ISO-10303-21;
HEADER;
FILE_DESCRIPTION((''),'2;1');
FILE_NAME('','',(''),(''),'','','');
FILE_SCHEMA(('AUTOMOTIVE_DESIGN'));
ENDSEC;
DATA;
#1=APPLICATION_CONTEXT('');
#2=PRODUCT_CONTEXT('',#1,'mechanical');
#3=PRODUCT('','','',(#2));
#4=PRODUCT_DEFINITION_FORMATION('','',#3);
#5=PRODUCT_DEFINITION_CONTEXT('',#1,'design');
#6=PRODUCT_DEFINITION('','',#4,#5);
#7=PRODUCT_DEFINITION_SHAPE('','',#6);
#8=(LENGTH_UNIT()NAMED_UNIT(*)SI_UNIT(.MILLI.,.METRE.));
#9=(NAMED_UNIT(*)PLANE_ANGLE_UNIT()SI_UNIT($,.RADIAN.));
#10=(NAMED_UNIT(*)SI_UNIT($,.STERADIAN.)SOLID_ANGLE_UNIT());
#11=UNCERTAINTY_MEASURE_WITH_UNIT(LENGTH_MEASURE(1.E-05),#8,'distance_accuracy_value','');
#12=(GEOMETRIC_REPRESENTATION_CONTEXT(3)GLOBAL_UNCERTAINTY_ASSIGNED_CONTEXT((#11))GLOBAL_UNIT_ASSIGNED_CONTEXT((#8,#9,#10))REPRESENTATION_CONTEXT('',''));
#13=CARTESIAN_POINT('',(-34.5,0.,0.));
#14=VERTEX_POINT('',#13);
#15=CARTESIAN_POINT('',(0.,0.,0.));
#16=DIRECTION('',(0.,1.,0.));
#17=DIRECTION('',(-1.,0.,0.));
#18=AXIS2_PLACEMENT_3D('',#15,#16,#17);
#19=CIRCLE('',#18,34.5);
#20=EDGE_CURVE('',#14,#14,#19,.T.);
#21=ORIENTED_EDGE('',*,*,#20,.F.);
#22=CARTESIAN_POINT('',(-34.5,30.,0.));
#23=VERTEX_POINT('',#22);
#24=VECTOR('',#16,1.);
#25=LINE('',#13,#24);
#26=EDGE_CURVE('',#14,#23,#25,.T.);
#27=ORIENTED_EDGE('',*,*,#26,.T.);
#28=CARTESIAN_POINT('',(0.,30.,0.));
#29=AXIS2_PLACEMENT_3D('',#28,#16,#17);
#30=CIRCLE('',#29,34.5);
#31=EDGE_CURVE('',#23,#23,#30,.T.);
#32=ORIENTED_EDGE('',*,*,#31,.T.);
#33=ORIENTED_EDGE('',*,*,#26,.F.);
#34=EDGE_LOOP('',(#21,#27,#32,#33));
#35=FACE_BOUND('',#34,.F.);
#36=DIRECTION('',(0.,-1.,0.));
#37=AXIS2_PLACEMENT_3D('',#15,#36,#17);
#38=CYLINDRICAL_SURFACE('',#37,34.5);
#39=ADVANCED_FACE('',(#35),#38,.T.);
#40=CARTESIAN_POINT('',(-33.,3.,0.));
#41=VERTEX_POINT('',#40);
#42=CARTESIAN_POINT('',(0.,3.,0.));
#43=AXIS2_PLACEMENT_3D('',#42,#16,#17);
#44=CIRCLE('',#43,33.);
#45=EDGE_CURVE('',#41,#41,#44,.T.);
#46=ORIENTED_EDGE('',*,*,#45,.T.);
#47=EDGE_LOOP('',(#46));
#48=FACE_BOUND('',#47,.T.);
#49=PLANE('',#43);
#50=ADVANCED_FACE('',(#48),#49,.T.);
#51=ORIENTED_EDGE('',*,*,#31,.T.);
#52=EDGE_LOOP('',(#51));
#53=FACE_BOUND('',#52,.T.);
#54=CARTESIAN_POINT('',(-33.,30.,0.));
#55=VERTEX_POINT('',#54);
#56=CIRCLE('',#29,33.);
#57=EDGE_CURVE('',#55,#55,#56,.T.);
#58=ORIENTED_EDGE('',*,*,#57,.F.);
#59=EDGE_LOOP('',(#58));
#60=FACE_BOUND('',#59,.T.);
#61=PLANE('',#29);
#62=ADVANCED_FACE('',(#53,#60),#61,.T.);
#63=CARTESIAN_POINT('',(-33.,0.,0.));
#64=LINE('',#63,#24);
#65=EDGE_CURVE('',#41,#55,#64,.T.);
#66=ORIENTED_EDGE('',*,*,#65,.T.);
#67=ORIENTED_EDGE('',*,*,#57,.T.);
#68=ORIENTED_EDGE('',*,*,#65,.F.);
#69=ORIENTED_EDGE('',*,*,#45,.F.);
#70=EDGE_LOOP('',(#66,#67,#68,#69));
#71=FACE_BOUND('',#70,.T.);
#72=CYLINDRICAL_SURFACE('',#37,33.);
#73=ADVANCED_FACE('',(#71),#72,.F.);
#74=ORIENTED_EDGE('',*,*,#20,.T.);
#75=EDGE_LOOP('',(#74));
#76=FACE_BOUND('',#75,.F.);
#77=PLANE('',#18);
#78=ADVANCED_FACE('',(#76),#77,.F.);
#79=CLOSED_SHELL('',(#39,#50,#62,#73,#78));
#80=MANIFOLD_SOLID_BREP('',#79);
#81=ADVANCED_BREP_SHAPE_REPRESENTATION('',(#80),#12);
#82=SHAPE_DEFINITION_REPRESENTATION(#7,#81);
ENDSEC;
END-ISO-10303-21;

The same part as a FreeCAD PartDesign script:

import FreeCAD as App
import Part
import Sketcher
from FreeCAD import Vector
Q = App.Units.Quantity

doc = App.newDocument("Part")
params = doc.addObject("Spreadsheet::Sheet", "Params")
for row, (alias, value) in enumerate([
    ("sketch1_diameter", "66 mm"),
    ("pad1_length", "3 mm"),
    ("sketch2_diameter", "69 mm"),
    ("sketch2_diameter2", "66 mm"),
    ("pad2_length", "30 mm"),
], start=1):
    params.set(f"A{row}", alias)
    params.set(f"B{row}", "=" + value)
    params.setAlias(f"B{row}", alias)

body = doc.addObject("PartDesign::Body", "Body")

sketch1 = body.newObject("Sketcher::SketchObject", "Sketch")
sketch1.AttachmentSupport = (doc.getObject("XZ_Plane"), [""])
sketch1.MapMode = "FlatFace"
sketch1.addGeometry(Part.Circle(Vector(0, 0, 0), Vector(0, 0, 1), 33), False)
sketch1.addConstraint([
    Sketcher.Constraint("Coincident", 0, 3, -1, 1),
    Sketcher.Constraint("Diameter", 0, Q("66 mm")),
])
sketch1.setExpression("Constraints[1]", "Params.sketch1_diameter")
pad1 = body.newObject("PartDesign::Pad", "Pad")
pad1.Profile = sketch1
pad1.setExpression("Length", "Params.pad1_length")
pad1.Reversed = True

sketch2 = body.newObject("Sketcher::SketchObject", "Sketch001")
sketch2.AttachmentSupport = (doc.getObject("XZ_Plane"), [""])
sketch2.MapMode = "FlatFace"
sketch2.addGeometry([
    Part.Circle(Vector(0, 0, 0), Vector(0, 0, 1), 34),
    Part.Circle(Vector(0, 0, 0), Vector(0, 0, 1), 33),
], False)
sketch2.addConstraint([
    Sketcher.Constraint("Coincident", 0, 3, -1, 1),
    Sketcher.Constraint("Coincident", 1, 3, -1, 1),
    Sketcher.Constraint("Diameter", 0, Q("69 mm")),
    Sketcher.Constraint("Diameter", 1, Q("66 mm")),
])
sketch2.setExpression("Constraints[2]", "Params.sketch2_diameter")
sketch2.setExpression("Constraints[3]", "Params.sketch2_diameter2")
pad2 = body.newObject("PartDesign::Pad", "Pad001")
pad2.Profile = sketch2
pad2.setExpression("Length", "Params.pad2_length")
pad2.Reversed = True

doc.recompute()
